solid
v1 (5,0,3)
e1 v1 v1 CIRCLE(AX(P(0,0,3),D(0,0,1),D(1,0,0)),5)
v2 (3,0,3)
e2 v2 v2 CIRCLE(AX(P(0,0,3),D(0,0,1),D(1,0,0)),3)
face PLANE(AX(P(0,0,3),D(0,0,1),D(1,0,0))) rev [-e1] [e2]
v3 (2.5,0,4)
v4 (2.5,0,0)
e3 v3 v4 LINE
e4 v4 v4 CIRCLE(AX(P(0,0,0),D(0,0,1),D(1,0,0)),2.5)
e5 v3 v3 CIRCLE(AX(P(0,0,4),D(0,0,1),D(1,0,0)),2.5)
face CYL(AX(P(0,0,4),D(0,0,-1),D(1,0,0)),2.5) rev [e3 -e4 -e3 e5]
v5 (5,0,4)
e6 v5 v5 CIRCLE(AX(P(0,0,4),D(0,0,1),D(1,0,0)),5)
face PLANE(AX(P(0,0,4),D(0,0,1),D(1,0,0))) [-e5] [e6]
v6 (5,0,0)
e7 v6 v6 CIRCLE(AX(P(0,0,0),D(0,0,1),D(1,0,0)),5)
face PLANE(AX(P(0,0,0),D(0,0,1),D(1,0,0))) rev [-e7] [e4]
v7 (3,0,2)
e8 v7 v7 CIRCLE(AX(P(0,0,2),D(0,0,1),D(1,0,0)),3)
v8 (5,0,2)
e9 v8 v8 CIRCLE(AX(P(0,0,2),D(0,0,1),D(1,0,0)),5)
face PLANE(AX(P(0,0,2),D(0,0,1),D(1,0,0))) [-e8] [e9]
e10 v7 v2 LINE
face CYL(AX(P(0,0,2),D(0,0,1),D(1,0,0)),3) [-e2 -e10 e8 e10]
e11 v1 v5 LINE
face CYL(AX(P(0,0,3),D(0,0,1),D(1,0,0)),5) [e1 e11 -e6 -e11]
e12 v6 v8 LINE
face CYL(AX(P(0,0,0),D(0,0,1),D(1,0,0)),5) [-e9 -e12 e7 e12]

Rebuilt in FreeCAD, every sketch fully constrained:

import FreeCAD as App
import Part
import Sketcher

V = App.Vector
Q = App.Units.Quantity


def add_polygon(sketch, points):
    """Adds a closed chain of lines whose ends are joined by coincident constraints."""
    first, n = sketch.GeometryCount, len(points)
    for a, b in zip(points, points[1:] + points[:1]):
        sketch.addGeometry(Part.LineSegment(App.Vector(*a, 0), App.Vector(*b, 0)), False)
    for i in range(n):
        sketch.addConstraint(Sketcher.Constraint("Coincident", first + i, 2, first + (i + 1) % n, 1))

doc = App.newDocument("Part")
body = doc.addObject("PartDesign::Body", "Body")

sketch1 = body.newObject("Sketcher::SketchObject", "Sketch")
sketch1.AttachmentSupport = (doc.getObject("XZ_Plane"), [""])
sketch1.MapMode = "FlatFace"
add_polygon(sketch1, [(2.5, 4), (2.5, 0), (5, 0), (5, 2), (3, 2), (3, 3), (5, 3), (5, 4)])
sketch1.addConstraint([
    Sketcher.Constraint("Vertical", 0),
    Sketcher.Constraint("Horizontal", 1),
    Sketcher.Constraint("Vertical", 2),
    Sketcher.Constraint("Horizontal", 3),
    Sketcher.Constraint("Vertical", 4),
    Sketcher.Constraint("Horizontal", 5),
    Sketcher.Constraint("Vertical", 6),
    Sketcher.Constraint("Horizontal", 7),
    Sketcher.Constraint("PointOnObject", 0, 2, -1),
    Sketcher.Constraint("Vertical", 2, 2, 5, 2),
    Sketcher.Constraint("Equal", 5, 2),
    Sketcher.Constraint("Equal", 4, 6),
    Sketcher.Constraint("DistanceX", 3, 2, 3, 1, Q("2 mm")),
    Sketcher.Constraint("DistanceY", 0, 2, 0, 1, Q("4 mm")),
    Sketcher.Constraint("DistanceX", 1, 1, 1, 2, Q("2.5 mm")),
    Sketcher.Constraint("DistanceX", -1, 1, 1, 2, Q("5 mm")),
])
revolution = body.newObject("PartDesign::Revolution", "Revolution")
revolution.Profile = sketch1
revolution.ReferenceAxis = (sketch1, ["V_Axis"])
revolution.Angle = 360

doc.recompute()
